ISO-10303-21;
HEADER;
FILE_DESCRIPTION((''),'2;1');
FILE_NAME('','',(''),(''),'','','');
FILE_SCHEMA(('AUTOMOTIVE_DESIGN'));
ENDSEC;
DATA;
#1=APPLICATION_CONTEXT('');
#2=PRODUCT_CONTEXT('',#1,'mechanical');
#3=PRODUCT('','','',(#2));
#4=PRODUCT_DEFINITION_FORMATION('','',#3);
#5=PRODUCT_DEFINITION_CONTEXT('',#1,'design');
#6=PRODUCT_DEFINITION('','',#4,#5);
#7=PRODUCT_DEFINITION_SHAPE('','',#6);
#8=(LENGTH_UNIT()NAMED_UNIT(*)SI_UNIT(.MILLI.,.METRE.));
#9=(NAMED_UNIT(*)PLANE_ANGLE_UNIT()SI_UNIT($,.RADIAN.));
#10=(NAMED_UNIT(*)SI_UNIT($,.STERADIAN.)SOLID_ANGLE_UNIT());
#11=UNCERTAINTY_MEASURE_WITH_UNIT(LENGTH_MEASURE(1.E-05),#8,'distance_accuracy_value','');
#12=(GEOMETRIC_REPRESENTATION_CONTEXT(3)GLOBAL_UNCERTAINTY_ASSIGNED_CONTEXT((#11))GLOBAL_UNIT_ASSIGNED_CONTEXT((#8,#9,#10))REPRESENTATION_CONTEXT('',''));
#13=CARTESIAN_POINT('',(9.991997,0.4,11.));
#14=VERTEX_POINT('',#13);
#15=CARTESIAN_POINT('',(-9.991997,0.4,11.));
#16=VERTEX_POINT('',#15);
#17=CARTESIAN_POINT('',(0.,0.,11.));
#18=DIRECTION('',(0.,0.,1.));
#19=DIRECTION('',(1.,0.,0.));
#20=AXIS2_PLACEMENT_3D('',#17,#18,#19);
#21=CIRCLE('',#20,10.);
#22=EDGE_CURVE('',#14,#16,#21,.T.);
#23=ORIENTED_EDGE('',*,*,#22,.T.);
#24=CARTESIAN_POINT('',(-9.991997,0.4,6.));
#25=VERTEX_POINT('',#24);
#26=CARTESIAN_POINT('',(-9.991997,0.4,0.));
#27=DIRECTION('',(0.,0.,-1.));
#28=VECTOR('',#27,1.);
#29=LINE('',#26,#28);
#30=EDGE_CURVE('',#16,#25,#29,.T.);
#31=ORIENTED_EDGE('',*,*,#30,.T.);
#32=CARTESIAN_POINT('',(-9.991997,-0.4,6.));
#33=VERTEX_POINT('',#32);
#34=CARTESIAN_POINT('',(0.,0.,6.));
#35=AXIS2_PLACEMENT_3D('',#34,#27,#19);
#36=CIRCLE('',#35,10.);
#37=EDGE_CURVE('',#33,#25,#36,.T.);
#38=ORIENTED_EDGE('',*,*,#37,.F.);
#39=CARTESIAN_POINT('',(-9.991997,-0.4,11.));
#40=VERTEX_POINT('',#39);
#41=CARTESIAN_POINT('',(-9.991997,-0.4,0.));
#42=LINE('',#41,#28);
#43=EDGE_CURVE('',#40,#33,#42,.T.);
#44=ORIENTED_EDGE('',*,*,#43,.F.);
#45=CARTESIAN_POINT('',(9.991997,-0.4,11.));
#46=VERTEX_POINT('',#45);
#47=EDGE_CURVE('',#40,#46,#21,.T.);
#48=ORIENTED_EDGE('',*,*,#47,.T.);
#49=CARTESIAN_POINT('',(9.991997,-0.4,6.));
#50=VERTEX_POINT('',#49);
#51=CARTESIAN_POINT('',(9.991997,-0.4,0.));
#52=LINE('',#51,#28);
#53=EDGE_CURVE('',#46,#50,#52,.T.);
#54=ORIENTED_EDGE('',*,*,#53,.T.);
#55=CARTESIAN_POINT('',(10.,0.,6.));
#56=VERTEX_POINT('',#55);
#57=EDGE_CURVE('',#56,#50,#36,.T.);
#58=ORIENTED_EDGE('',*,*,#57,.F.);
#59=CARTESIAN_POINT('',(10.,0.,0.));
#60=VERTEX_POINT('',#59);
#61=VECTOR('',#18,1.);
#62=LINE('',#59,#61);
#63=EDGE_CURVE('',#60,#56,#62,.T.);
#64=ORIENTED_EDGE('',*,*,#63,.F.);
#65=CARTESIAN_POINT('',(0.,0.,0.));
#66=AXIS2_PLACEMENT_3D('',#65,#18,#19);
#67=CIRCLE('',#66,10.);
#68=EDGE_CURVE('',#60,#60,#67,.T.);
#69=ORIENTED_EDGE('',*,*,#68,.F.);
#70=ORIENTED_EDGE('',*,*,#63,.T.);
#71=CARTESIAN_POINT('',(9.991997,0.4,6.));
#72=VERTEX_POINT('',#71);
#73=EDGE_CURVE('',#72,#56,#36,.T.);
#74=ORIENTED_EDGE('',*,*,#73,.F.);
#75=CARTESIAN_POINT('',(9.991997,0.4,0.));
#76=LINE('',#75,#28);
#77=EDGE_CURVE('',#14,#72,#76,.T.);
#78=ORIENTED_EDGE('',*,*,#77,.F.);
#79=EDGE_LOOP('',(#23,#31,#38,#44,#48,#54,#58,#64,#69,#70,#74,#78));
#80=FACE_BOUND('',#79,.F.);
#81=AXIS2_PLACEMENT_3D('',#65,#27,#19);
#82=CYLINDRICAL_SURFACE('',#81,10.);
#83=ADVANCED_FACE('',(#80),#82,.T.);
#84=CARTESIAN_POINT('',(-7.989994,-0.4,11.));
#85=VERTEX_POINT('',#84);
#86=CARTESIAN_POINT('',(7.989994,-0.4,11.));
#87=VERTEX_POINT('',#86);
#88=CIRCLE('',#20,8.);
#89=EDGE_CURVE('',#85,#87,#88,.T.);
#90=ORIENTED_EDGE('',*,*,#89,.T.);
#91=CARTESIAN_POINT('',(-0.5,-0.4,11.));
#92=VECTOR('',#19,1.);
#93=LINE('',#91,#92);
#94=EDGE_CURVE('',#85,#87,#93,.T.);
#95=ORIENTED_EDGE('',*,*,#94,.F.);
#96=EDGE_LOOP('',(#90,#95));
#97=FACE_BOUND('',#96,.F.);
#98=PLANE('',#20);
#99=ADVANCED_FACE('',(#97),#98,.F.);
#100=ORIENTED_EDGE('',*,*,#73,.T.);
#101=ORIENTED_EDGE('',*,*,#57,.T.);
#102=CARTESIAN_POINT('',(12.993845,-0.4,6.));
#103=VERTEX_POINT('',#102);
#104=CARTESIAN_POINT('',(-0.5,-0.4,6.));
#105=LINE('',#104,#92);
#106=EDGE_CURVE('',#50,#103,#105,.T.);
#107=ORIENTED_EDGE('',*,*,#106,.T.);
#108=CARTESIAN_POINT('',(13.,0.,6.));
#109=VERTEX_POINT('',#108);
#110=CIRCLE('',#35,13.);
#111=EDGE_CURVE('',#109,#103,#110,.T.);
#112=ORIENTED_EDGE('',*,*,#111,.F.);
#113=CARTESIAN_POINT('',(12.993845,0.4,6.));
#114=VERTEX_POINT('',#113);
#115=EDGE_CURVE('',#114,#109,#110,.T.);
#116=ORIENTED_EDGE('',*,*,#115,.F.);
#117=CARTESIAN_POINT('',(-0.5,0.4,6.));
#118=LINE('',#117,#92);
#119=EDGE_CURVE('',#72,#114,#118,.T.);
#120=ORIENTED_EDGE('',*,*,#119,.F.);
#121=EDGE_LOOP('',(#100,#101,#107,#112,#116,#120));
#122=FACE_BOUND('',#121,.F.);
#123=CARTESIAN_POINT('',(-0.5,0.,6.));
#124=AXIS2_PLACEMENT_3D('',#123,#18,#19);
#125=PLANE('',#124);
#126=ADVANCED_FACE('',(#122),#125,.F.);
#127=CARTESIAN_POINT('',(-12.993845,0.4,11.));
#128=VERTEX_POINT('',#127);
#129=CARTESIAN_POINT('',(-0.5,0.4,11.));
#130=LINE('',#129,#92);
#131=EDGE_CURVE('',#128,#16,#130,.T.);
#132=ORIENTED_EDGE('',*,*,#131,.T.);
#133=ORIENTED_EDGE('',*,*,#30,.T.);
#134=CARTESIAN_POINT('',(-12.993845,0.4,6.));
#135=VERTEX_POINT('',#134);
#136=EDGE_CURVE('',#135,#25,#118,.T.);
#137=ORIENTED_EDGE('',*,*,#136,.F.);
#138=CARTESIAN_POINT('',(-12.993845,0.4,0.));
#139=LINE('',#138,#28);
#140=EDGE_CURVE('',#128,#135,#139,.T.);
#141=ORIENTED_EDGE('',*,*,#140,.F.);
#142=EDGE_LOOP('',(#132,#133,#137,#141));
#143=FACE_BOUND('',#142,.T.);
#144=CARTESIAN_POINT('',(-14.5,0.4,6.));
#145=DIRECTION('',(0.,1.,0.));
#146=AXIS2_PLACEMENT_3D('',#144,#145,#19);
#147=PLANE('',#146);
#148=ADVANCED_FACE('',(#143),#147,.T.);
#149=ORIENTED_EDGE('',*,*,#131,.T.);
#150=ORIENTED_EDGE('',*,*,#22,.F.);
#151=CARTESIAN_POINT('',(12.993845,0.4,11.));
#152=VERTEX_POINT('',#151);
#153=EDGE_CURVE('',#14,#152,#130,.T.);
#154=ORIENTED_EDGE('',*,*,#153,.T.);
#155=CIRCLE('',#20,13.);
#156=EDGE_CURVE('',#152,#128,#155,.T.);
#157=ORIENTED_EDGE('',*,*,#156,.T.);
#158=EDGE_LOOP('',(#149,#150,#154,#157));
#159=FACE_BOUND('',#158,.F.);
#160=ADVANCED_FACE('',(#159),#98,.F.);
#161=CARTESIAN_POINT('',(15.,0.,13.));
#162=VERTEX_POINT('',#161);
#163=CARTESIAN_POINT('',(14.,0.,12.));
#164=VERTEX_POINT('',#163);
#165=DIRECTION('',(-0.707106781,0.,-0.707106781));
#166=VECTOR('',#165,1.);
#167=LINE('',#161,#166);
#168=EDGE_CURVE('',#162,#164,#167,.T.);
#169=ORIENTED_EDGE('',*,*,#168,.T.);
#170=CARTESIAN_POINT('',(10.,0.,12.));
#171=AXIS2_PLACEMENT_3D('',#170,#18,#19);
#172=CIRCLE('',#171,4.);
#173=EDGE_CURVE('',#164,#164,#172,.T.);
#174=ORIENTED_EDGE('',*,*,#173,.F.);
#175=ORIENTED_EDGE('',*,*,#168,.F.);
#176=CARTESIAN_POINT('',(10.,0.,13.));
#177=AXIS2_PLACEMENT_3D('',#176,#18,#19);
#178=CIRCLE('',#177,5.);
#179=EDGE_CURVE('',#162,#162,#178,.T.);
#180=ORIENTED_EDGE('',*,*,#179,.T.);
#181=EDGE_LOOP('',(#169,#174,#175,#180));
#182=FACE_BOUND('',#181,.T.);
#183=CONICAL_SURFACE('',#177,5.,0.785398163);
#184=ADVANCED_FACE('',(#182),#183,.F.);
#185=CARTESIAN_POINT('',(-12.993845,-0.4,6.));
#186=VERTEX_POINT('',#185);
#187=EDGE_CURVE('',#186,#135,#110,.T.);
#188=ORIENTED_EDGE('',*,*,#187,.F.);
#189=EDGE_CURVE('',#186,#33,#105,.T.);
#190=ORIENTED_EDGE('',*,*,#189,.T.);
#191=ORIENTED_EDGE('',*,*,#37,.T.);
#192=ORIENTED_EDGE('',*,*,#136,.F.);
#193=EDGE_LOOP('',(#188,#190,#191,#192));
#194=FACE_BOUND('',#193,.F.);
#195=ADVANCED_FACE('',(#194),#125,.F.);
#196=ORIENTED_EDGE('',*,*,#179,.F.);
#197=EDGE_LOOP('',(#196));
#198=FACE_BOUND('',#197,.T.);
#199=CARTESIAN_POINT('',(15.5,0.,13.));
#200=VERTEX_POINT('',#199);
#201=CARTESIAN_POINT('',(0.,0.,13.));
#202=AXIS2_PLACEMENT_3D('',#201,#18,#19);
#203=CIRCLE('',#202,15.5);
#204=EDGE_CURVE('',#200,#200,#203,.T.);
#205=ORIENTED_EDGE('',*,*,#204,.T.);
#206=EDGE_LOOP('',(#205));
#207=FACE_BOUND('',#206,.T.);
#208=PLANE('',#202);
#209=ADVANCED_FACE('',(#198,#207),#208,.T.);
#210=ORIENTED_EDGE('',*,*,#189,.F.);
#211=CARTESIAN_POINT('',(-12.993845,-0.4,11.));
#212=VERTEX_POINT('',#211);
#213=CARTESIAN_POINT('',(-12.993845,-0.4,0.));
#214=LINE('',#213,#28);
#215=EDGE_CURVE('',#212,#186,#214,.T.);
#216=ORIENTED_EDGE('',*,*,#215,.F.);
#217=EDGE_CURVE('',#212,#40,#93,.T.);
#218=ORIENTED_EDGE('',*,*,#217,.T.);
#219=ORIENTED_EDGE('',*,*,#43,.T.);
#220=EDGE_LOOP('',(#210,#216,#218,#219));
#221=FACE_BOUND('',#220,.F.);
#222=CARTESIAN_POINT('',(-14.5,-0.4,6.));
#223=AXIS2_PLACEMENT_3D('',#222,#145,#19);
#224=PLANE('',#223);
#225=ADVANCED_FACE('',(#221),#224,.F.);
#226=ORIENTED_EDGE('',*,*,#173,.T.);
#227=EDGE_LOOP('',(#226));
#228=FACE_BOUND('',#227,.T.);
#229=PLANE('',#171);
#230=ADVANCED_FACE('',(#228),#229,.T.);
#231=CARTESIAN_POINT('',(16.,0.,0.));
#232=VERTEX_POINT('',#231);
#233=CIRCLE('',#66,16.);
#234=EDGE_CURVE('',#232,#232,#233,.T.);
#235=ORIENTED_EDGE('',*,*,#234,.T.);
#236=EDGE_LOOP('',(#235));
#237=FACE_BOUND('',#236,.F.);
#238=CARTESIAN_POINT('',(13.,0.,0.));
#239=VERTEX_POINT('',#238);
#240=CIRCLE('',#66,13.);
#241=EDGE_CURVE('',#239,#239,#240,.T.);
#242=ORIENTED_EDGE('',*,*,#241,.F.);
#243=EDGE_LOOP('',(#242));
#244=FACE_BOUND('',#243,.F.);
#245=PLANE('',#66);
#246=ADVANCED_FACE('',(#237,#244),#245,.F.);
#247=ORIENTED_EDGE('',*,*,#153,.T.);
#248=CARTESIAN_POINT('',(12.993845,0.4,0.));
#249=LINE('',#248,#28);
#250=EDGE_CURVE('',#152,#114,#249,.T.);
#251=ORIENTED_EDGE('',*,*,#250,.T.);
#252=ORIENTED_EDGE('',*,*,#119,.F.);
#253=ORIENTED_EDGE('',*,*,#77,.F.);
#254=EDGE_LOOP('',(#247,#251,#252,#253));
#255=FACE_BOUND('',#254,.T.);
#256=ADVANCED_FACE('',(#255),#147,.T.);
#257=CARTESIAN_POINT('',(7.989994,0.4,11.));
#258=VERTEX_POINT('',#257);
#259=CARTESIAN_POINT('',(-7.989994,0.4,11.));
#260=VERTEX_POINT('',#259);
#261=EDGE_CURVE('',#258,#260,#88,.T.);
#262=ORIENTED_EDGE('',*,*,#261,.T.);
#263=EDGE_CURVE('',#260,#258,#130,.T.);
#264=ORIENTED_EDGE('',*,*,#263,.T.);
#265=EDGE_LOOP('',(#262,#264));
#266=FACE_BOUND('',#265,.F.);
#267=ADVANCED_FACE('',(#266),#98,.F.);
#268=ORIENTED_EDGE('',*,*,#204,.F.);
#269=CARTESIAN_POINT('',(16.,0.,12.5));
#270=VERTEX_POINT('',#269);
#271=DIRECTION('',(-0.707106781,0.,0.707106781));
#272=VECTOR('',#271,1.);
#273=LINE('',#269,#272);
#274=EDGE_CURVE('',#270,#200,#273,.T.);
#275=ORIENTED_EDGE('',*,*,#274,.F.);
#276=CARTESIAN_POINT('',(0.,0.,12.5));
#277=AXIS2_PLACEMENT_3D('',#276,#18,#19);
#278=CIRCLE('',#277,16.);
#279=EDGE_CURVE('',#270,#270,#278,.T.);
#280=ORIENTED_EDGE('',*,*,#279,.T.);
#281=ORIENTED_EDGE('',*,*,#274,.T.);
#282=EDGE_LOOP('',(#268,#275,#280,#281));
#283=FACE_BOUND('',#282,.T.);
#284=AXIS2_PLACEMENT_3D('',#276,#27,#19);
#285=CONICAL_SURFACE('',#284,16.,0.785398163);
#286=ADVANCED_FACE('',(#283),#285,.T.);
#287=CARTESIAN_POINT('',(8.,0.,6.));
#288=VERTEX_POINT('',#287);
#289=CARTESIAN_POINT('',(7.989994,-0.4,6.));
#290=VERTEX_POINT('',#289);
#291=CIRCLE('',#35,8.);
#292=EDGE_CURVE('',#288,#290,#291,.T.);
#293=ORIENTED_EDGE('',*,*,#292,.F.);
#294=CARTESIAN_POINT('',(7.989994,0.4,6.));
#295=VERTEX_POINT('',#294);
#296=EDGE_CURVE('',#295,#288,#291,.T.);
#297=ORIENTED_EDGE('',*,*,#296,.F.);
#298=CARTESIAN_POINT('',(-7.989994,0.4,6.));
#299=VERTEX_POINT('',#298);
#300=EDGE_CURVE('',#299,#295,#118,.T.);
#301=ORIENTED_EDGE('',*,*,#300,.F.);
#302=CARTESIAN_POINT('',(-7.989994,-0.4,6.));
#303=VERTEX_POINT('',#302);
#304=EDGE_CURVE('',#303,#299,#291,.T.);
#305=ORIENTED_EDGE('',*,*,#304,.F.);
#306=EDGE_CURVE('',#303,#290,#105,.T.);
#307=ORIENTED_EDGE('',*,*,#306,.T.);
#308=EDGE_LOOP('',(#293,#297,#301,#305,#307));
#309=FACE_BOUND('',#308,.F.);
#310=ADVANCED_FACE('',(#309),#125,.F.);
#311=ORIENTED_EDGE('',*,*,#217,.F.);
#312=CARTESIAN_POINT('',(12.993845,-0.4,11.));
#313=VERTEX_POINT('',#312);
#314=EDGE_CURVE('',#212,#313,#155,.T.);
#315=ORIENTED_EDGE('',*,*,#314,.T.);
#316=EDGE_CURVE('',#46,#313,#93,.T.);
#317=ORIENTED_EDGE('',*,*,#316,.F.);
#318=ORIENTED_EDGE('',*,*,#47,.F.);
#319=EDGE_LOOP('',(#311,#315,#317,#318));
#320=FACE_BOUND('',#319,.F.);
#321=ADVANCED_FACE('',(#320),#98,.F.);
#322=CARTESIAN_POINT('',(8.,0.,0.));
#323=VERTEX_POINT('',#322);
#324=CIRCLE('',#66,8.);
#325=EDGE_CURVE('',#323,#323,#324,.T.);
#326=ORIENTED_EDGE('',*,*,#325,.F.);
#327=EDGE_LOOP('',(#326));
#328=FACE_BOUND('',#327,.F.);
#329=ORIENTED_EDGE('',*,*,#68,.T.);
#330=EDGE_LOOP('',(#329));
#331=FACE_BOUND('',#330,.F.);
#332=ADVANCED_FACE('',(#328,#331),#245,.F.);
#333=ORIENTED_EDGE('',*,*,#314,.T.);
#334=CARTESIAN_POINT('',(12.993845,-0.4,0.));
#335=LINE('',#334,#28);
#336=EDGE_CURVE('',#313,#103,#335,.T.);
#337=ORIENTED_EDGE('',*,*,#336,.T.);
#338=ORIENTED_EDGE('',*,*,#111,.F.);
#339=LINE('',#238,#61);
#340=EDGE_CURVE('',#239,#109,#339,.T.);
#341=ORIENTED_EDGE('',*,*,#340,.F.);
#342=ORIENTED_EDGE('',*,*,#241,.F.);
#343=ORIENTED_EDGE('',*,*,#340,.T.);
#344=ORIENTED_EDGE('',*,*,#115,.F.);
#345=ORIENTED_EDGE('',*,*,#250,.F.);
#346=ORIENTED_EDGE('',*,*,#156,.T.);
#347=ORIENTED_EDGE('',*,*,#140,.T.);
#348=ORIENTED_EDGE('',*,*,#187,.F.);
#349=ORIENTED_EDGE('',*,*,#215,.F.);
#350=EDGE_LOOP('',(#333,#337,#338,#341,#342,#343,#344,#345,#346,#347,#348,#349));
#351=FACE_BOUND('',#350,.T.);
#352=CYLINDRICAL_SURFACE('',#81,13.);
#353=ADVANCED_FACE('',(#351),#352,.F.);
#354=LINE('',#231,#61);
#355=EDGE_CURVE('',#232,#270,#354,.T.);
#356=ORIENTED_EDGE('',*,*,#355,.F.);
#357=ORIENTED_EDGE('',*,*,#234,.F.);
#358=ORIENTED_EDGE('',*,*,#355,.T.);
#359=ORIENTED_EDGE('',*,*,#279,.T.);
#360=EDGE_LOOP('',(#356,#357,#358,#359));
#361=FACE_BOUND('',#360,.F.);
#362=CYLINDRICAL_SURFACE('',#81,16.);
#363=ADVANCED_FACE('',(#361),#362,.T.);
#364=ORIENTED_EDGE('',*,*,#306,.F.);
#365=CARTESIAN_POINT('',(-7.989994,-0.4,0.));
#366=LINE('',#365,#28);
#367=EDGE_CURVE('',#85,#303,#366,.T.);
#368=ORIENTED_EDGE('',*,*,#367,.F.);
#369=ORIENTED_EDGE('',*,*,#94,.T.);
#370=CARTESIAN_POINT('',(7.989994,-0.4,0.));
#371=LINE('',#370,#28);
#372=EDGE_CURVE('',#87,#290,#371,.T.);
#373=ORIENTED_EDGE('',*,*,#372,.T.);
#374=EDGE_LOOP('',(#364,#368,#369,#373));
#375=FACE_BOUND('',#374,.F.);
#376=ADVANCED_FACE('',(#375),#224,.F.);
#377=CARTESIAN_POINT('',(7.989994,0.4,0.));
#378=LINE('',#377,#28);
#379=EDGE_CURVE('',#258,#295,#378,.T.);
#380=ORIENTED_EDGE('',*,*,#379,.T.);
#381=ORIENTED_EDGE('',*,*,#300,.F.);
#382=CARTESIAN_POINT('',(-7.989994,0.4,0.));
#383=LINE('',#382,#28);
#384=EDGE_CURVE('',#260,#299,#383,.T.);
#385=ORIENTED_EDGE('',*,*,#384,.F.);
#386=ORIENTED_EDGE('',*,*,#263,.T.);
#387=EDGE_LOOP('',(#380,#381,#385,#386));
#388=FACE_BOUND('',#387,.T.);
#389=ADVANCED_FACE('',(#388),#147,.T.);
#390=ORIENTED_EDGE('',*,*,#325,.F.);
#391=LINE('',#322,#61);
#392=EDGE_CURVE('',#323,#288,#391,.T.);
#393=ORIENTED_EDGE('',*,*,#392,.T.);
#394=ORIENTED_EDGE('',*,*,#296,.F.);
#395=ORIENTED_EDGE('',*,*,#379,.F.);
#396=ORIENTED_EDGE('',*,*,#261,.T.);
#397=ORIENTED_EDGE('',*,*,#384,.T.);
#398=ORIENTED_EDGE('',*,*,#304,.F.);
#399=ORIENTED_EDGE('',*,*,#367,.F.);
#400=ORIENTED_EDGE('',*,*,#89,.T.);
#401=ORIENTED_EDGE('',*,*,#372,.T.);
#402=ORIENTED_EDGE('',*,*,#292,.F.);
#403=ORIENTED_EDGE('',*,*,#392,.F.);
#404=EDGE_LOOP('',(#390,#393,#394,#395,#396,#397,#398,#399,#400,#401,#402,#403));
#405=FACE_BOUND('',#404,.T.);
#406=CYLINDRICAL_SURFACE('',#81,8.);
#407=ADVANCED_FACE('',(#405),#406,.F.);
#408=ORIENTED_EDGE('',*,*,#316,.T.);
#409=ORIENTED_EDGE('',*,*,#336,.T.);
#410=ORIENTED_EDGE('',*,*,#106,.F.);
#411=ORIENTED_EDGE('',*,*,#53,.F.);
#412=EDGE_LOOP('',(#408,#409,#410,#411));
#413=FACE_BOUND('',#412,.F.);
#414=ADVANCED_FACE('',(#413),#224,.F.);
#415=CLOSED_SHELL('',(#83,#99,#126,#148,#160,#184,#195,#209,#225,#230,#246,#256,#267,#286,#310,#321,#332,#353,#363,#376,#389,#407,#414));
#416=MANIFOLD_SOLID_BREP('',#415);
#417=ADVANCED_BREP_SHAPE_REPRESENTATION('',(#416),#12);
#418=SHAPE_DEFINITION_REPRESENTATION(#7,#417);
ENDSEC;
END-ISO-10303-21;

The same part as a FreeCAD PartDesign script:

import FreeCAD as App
import Part
import Sketcher

V = App.Vector


def edges_at(feature, points):
    """Names of the edges that pass closest to the given points."""
    edges = feature.Shape.Edges
    near = lambda p: min(range(len(edges)), key=lambda i: edges[i].distToShape(Part.Vertex(*p))[0])
    return sorted({f"Edge{near(p) + 1}" for p in points})

doc = App.newDocument("Part")
params = doc.addObject("Spreadsheet::Sheet", "Params")
for row, (alias, value) in enumerate([
    ("sketch1_diameter", "16 mm"),
    ("pad1_length", "11 mm"),
    ("sketch2_diameter", "20 mm"),
    ("pad2_length", "11 mm"),
    ("sketch3_width", "28 mm"),
    ("sketch3_height", "0.8 mm"),
    ("pad3_length", "5 mm"),
    ("sketch4_diameter", "10 mm"),
    ("pad4_length", "2 mm"),
    ("chamfer_size", "1 mm"),
    ("sketch5_diameter", "26 mm"),
    ("pad5_length", "11 mm"),
    ("sketch6_diameter", "32 mm"),
    ("pad6_length", "13 mm"),
    ("chamfer2_size", "0.5 mm"),
], start=1):
    params.set(f"A{row}", alias)
    params.set(f"B{row}", "=" + value)
    params.setAlias(f"B{row}", alias)

body = doc.addObject("PartDesign::Body", "Body")

# Sketch on XY plane
sketch1 = body.newObject("Sketcher::SketchObject", "Sketch")
sketch1.AttachmentSupport = (doc.getObject("XY_Plane"), [""])
sketch1.MapMode = "FlatFace"
sketch1.addGeometry(Part.Circle(V(0, 0, 0), V(0, 0, 1), 8), False)
sketch1.addConstraint(Sketcher.Constraint("Coincident", 0, 3, -1, 1))
sketch1.addConstraint(Sketcher.Constraint("Diameter", 0, 16.0))
sketch1.setExpression("Constraints[1]", "Params.sketch1_diameter")
pad1 = body.newObject("PartDesign::Pad", "Pad")
pad1.Profile = sketch1
pad1.setExpression("Length", "Params.pad1_length")
body2 = doc.addObject("PartDesign::Body", "Body001")

# Sketch on XY plane
sketch2 = body2.newObject("Sketcher::SketchObject", "Sketch001")
sketch2.AttachmentSupport = (doc.getObject("XY_Plane001"), [""])
sketch2.MapMode = "FlatFace"
sketch2.addGeometry(Part.Circle(V(0, 0, 0), V(0, 0, 1), 10), False)
sketch2.addConstraint(Sketcher.Constraint("Coincident", 0, 3, -1, 1))
sketch2.addConstraint(Sketcher.Constraint("Diameter", 0, 20.0))
sketch2.setExpression("Constraints[1]", "Params.sketch2_diameter")
pad2 = body2.newObject("PartDesign::Pad", "Pad001")
pad2.Profile = sketch2
pad2.setExpression("Length", "Params.pad2_length")
doc.recompute()

boolean = body2.newObject("PartDesign::Boolean", "Boolean")
boolean.Type = "Cut"
boolean.addObjects([body])
body3 = doc.addObject("PartDesign::Body", "Body002")

# Sketch on XY plane
sketch3 = body3.newObject("Sketcher::SketchObject", "Sketch002")
sketch3.AttachmentSupport = (doc.getObject("XY_Plane002"), [""])
sketch3.MapMode = "FlatFace"
sketch3.AttachmentOffset = App.Placement(V(0, 0, 6), App.Rotation())
sketch3.addGeometry(Part.LineSegment(V(-14.5, 0.4, 0), V(-14.5, -0.4, 0)), False)
sketch3.addGeometry(Part.LineSegment(V(-14.5, -0.4, 0), V(13.5, -0.4, 0)), False)
sketch3.addGeometry(Part.LineSegment(V(13.5, -0.4, 0), V(13.5, 0.4, 0)), False)
sketch3.addGeometry(Part.LineSegment(V(13.5, 0.4, 0), V(-14.5, 0.4, 0)), False)
sketch3.addConstraint(Sketcher.Constraint("Coincident", 0, 2, 1, 1))
sketch3.addConstraint(Sketcher.Constraint("Coincident", 1, 2, 2, 1))
sketch3.addConstraint(Sketcher.Constraint("Coincident", 2, 2, 3, 1))
sketch3.addConstraint(Sketcher.Constraint("Coincident", 3, 2, 0, 1))
sketch3.addConstraint(Sketcher.Constraint("Vertical", 0))
sketch3.addConstraint(Sketcher.Constraint("Horizontal", 1))
sketch3.addConstraint(Sketcher.Constraint("Vertical", 2))
sketch3.addConstraint(Sketcher.Constraint("Horizontal", 3))
sketch3.addConstraint(Sketcher.Constraint("DistanceX", 1, 1, 1, 2, 28.0))
sketch3.addConstraint(Sketcher.Constraint("DistanceY", 0, 2, 0, 1, 0.8))
sketch3.addConstraint(Sketcher.Constraint("DistanceX", 0, 2, -1, 1, 14.5))
sketch3.addConstraint(Sketcher.Constraint("DistanceY", 0, 2, -1, 1, 0.4))
sketch3.setExpression("Constraints[8]", "Params.sketch3_width")
sketch3.setExpression("Constraints[9]", "Params.sketch3_height")
pad3 = body3.newObject("PartDesign::Pad", "Pad002")
pad3.Profile = sketch3
pad3.setExpression("Length", "Params.pad3_length")
body4 = doc.addObject("PartDesign::Body", "Body003")

# Sketch on XY plane
sketch4 = body4.newObject("Sketcher::SketchObject", "Sketch003")
sketch4.AttachmentSupport = (doc.getObject("XY_Plane003"), [""])
sketch4.MapMode = "FlatFace"
sketch4.AttachmentOffset = App.Placement(V(0, 0, 19), App.Rotation())
sketch4.addGeometry(Part.Circle(V(0, 0, 0), V(0, 0, 1), 5), False)
sketch4.addConstraint(Sketcher.Constraint("Coincident", 0, 3, -1, 1))
sketch4.addConstraint(Sketcher.Constraint("Diameter", 0, 10.0))
sketch4.setExpression("Constraints[1]", "Params.sketch4_diameter")
pad4 = body4.newObject("PartDesign::Pad", "Pad003")
pad4.Profile = sketch4
pad4.setExpression("Length", "Params.pad4_length")
doc.recompute()

chamfer = body4.newObject("PartDesign::Chamfer", "Chamfer")
chamfer.Base = (pad4, edges_at(pad4, [(-5, 0, 19)]))
chamfer.setExpression("Size", "Params.chamfer_size")
body5 = doc.addObject("PartDesign::Body", "Body004")
doc.recompute()

body4.Placement = App.Placement(V(10, 0, -7), App.Rotation(V(0, 0, 1), 0))
boolean2 = body5.newObject("PartDesign::Boolean", "Boolean001")
boolean2.Type = "Fuse"
boolean2.addObjects([body4])
body6 = doc.addObject("PartDesign::Body", "Body005")

# Sketch on XY plane
sketch5 = body6.newObject("Sketcher::SketchObject", "Sketch004")
sketch5.AttachmentSupport = (doc.getObject("XY_Plane005"), [""])
sketch5.MapMode = "FlatFace"
sketch5.addGeometry(Part.Circle(V(0, 0, 0), V(0, 0, 1), 13), False)
sketch5.addConstraint(Sketcher.Constraint("Coincident", 0, 3, -1, 1))
sketch5.addConstraint(Sketcher.Constraint("Diameter", 0, 26.0))
sketch5.setExpression("Constraints[1]", "Params.sketch5_diameter")
pad5 = body6.newObject("PartDesign::Pad", "Pad004")
pad5.Profile = sketch5
pad5.setExpression("Length", "Params.pad5_length")
body7 = doc.addObject("PartDesign::Body", "Body006")

# Sketch on XY plane
sketch6 = body7.newObject("Sketcher::SketchObject", "Sketch005")
sketch6.AttachmentSupport = (doc.getObject("XY_Plane006"), [""])
sketch6.MapMode = "FlatFace"
sketch6.addGeometry(Part.Circle(V(0, 0, 0), V(0, 0, 1), 16), False)
sketch6.addConstraint(Sketcher.Constraint("Coincident", 0, 3, -1, 1))
sketch6.addConstraint(Sketcher.Constraint("Diameter", 0, 32.0))
sketch6.setExpression("Constraints[1]", "Params.sketch6_diameter")
pad6 = body7.newObject("PartDesign::Pad", "Pad005")
pad6.Profile = sketch6
pad6.setExpression("Length", "Params.pad6_length")
doc.recompute()

boolean3 = body7.newObject("PartDesign::Boolean", "Boolean002")
boolean3.Type = "Cut"
boolean3.addObjects([body6])
doc.recompute()

chamfer2 = body7.newObject("PartDesign::Chamfer", "Chamfer001")
chamfer2.Base = (boolean3, edges_at(boolean3, [(-16, 0, 13)]))
chamfer2.setExpression("Size", "Params.chamfer2_size")
doc.recompute()

boolean4 = body7.newObject("PartDesign::Boolean", "Boolean003")
boolean4.Type = "Cut"
boolean4.addObjects([body5])
doc.recompute()

boolean5 = body7.newObject("PartDesign::Boolean", "Boolean004")
boolean5.Type = "Fuse"
boolean5.addObjects([body2])
doc.recompute()

boolean6 = body7.newObject("PartDesign::Boolean", "Boolean005")
boolean6.Type = "Fuse"
boolean6.addObjects([body3])

doc.recompute()
